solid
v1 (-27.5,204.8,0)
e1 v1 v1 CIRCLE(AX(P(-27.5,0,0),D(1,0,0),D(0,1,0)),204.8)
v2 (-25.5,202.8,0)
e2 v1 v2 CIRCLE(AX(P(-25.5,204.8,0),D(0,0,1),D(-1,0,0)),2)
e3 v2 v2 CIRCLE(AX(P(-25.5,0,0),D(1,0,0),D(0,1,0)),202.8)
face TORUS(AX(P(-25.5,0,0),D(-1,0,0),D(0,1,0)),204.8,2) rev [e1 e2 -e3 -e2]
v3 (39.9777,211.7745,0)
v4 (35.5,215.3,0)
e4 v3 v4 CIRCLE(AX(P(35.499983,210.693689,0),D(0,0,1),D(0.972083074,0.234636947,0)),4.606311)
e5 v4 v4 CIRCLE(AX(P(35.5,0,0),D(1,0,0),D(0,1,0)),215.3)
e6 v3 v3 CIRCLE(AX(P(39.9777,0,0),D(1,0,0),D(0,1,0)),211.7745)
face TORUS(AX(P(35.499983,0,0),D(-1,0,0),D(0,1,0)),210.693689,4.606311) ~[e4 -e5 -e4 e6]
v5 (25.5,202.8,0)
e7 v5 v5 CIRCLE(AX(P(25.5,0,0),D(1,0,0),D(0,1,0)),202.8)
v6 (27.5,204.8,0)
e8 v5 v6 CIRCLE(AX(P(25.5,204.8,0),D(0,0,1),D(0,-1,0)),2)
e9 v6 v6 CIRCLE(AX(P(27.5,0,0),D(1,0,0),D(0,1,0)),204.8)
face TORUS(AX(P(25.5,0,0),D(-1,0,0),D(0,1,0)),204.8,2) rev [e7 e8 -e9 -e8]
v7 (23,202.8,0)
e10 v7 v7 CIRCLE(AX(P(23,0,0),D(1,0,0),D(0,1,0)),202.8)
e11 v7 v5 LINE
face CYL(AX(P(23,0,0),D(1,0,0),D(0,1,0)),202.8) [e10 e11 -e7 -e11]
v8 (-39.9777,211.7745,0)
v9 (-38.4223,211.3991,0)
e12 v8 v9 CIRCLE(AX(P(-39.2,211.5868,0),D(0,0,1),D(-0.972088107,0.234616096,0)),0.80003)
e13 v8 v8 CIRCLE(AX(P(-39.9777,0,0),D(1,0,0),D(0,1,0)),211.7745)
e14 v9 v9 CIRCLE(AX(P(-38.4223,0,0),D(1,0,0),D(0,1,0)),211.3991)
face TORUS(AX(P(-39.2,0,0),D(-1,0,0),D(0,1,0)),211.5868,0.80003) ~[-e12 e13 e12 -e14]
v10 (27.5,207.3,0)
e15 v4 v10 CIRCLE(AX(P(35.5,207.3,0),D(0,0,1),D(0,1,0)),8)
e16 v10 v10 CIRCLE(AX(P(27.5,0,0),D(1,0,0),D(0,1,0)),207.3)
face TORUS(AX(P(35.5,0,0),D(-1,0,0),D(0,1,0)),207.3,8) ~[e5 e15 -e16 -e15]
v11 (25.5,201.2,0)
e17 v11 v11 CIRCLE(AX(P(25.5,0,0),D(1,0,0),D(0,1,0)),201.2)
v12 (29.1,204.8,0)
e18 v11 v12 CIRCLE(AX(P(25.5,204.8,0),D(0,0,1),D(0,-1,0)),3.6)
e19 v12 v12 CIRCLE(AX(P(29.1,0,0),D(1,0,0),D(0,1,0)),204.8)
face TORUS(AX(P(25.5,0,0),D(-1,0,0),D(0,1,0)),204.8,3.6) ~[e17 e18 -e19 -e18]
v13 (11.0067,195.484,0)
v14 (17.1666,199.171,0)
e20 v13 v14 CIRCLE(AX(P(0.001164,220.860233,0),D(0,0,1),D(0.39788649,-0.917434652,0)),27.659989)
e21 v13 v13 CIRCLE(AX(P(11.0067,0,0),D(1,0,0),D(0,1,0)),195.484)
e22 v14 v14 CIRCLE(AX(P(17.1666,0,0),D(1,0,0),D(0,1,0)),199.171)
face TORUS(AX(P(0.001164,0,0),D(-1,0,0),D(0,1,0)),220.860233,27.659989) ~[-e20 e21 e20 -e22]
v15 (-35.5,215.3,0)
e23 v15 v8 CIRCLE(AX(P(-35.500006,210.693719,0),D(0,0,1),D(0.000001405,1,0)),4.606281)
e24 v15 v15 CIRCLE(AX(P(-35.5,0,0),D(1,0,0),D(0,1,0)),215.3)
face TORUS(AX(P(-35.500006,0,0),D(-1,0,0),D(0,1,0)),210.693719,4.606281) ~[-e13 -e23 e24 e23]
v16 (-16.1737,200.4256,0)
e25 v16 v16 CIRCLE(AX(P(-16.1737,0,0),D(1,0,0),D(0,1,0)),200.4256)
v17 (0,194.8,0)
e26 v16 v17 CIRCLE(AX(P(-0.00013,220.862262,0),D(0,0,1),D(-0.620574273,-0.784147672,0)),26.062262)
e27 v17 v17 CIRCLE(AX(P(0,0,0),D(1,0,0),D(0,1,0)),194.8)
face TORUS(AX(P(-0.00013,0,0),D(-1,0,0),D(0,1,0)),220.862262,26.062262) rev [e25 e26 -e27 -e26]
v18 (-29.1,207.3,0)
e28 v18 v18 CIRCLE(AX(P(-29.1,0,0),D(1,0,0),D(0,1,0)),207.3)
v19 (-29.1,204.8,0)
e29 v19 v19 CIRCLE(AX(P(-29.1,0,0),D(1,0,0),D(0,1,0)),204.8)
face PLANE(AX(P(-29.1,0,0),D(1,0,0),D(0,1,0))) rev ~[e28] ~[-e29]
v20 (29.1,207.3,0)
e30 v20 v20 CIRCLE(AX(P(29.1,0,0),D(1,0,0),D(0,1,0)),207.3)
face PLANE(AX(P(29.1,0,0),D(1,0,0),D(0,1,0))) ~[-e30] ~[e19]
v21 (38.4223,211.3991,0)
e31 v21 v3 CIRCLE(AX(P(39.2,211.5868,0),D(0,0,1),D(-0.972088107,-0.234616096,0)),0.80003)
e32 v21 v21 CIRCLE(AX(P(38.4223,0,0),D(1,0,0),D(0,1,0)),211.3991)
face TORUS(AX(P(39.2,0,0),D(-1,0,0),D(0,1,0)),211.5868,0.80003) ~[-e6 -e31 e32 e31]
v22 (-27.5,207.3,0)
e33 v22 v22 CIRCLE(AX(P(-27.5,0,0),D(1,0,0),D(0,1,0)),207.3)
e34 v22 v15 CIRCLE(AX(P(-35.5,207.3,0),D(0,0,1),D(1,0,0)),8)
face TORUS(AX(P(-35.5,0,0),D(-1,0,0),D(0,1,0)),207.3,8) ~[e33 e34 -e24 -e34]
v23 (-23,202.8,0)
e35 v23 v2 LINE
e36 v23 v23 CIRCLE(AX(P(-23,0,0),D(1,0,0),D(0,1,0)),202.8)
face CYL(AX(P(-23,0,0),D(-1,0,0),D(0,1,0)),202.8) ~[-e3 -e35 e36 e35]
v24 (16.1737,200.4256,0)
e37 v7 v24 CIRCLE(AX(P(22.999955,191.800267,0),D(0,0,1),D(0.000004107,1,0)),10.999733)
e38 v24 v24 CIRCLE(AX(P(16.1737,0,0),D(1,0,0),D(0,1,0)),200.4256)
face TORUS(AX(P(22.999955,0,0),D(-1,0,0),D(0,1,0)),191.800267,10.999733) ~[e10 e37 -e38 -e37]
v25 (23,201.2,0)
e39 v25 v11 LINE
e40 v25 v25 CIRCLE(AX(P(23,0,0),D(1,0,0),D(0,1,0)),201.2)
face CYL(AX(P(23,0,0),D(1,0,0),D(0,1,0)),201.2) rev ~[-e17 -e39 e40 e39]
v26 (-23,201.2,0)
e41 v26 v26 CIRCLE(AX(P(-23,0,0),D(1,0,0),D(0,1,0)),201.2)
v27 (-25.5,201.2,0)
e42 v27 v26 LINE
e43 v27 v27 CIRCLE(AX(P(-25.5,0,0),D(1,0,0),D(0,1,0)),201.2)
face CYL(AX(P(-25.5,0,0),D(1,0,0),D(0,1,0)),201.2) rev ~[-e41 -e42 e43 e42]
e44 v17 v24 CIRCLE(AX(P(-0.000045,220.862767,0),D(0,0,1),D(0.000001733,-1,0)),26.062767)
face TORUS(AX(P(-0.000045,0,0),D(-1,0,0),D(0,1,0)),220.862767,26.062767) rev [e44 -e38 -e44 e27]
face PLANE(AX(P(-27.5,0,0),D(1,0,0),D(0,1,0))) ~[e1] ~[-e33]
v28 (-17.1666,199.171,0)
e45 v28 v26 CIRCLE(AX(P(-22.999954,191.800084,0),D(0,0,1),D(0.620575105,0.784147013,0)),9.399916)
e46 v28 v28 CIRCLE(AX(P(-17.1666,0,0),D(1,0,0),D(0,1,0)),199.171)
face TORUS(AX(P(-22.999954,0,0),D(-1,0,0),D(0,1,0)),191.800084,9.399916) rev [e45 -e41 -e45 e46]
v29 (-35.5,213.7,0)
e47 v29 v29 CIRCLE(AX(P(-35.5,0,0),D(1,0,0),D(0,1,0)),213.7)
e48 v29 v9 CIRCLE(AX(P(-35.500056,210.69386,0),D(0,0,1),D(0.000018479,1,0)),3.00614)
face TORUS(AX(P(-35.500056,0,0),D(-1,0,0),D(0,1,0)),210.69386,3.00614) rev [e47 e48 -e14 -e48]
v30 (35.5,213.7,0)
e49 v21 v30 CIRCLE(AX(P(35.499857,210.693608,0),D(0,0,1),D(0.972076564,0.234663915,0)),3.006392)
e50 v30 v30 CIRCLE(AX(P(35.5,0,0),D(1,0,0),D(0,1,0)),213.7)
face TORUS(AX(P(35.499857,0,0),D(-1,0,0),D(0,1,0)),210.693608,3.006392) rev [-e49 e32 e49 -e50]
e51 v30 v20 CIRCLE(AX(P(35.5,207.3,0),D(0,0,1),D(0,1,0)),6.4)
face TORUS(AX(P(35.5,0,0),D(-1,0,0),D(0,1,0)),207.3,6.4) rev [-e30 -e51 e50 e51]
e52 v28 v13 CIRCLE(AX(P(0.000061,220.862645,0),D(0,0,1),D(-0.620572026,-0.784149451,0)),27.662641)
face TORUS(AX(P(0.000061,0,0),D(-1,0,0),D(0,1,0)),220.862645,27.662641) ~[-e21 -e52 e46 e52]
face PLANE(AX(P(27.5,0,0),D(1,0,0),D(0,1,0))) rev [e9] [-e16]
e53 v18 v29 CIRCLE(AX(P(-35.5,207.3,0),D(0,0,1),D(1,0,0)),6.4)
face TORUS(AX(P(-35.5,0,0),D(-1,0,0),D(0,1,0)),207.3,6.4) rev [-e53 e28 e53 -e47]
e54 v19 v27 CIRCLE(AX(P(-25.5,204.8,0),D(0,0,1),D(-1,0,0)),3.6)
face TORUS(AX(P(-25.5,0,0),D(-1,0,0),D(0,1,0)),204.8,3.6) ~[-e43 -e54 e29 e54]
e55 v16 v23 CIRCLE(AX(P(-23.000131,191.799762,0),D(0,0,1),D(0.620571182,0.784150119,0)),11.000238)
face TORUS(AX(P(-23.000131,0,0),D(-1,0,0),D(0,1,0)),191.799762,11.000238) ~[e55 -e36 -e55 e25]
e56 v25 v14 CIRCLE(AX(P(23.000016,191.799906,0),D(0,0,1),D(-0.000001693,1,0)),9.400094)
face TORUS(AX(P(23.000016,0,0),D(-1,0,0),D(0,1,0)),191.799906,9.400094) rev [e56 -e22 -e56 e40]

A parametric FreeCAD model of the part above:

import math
import FreeCAD as App
import Part
import Sketcher
from FreeCAD import Vector

doc = App.newDocument("Part")
body = doc.addObject("PartDesign::Body", "Body")

sketch1 = body.newObject("Sketcher::SketchObject", "Sketch")
sketch1.AttachmentSupport = (doc.getObject("XY_Plane"), [""])
sketch1.MapMode = "FlatFace"
sketch1.addGeometry(Part.ArcOfCircle(Part.Circle(Vector(0, 220.8625, 0), Vector(0, 0, 1), 26.0625), math.radians(-128.357984), math.radians(-90)), False)
sketch1.addGeometry(Part.ArcOfCircle(Part.Circle(Vector(-23, 191.8, 0), Vector(0, 0, 1), 10.99997), math.radians(51.641908), math.radians(90)), False)
sketch1.addGeometry(Part.LineSegment(Vector(-23, 202.8, 0), Vector(-25.5, 202.8, 0)), False)
sketch1.addGeometry(Part.ArcOfCircle(Part.Circle(Vector(-25.5, 204.8, 0), Vector(0, 0, 1), 2), math.radians(180), math.radians(270)), False)
sketch1.addGeometry(Part.LineSegment(Vector(-27.5, 204.8, 0), Vector(-27.5, 207.3, 0)), False)
sketch1.addGeometry(Part.ArcOfCircle(Part.Circle(Vector(-35.5, 207.3, 0), Vector(0, 0, 1), 8), math.radians(0), math.radians(90)), False)
sketch1.addGeometry(Part.ArcOfCircle(Part.Circle(Vector(-35.5, 210.6937, 0), Vector(0, 0, 1), 4.6063), math.radians(90), math.radians(166.429857)), False)
sketch1.addGeometry(Part.ArcOfCircle(Part.Circle(Vector(-39.2, 211.5868, 0), Vector(0, 0, 1), 0.80003), math.radians(166.431006), math.radians(346.431006)), False)
sketch1.addGeometry(Part.ArcOfCircle(Part.Circle(Vector(-35.5, 210.6937, 0), Vector(0, 0, 1), 3.0063), math.radians(90), math.radians(166.429246)), False)
sketch1.addGeometry(Part.ArcOfCircle(Part.Circle(Vector(-35.5, 207.3, 0), Vector(0, 0, 1), 6.4), math.radians(0), math.radians(90)), False)
sketch1.addGeometry(Part.LineSegment(Vector(-29.1, 207.3, 0), Vector(-29.1, 204.8, 0)), False)
sketch1.addGeometry(Part.ArcOfCircle(Part.Circle(Vector(-25.5, 204.8, 0), Vector(0, 0, 1), 3.6), math.radians(180), math.radians(270)), False)
sketch1.addGeometry(Part.LineSegment(Vector(-25.5, 201.2, 0), Vector(-23, 201.2, 0)), False)
sketch1.addGeometry(Part.ArcOfCircle(Part.Circle(Vector(-23, 191.8, 0), Vector(0, 0, 1), 9.40001), math.radians(51.641953), math.radians(90)), False)
sketch1.addGeometry(Part.ArcOfCircle(Part.Circle(Vector(0, 220.8625, 0), Vector(0, 0, 1), 27.662533), math.radians(-128.358006), math.radians(-66.553538)), False)
sketch1.addGeometry(Part.ArcOfCircle(Part.Circle(Vector(0.001164, 220.860233, 0), Vector(0, 0, 1), 27.659989), math.radians(-66.553881), math.radians(-51.640971)), False)
sketch1.addGeometry(Part.ArcOfCircle(Part.Circle(Vector(23, 191.8, 0), Vector(0, 0, 1), 9.4), math.radians(90), math.radians(128.358047)), False)
sketch1.addGeometry(Part.LineSegment(Vector(23, 201.2, 0), Vector(25.5, 201.2, 0)), False)
sketch1.addGeometry(Part.ArcOfCircle(Part.Circle(Vector(25.5, 204.8, 0), Vector(0, 0, 1), 3.6), math.radians(-90), math.radians(0)), False)
sketch1.addGeometry(Part.LineSegment(Vector(29.1, 204.8, 0), Vector(29.1, 207.3, 0)), False)
sketch1.addGeometry(Part.ArcOfCircle(Part.Circle(Vector(35.5, 207.3, 0), Vector(0, 0, 1), 6.4), math.radians(90), math.radians(180)), False)
sketch1.addGeometry(Part.ArcOfCircle(Part.Circle(Vector(35.5, 210.6937, 0), Vector(0, 0, 1), 3.006231), math.radians(13.570754), math.radians(90)), False)
sketch1.addGeometry(Part.ArcOfCircle(Part.Circle(Vector(39.2, 211.5868, 0), Vector(0, 0, 1), 0.80003), math.radians(-166.431006), math.radians(13.568994)), False)
sketch1.addGeometry(Part.ArcOfCircle(Part.Circle(Vector(35.5, 210.6937, 0), Vector(0, 0, 1), 4.606292), math.radians(13.570143), math.radians(90)), False)
sketch1.addGeometry(Part.ArcOfCircle(Part.Circle(Vector(35.5, 207.3, 0), Vector(0, 0, 1), 8), math.radians(90), math.radians(180)), False)
sketch1.addGeometry(Part.LineSegment(Vector(27.5, 207.3, 0), Vector(27.5, 204.8, 0)), False)
sketch1.addGeometry(Part.ArcOfCircle(Part.Circle(Vector(25.5, 204.8, 0), Vector(0, 0, 1), 2), math.radians(-90), math.radians(0)), False)
sketch1.addGeometry(Part.LineSegment(Vector(25.5, 202.8, 0), Vector(23, 202.8, 0)), False)
sketch1.addGeometry(Part.ArcOfCircle(Part.Circle(Vector(23, 191.8, 0), Vector(0, 0, 1), 11), math.radians(90), math.radians(128.358092)), False)
sketch1.addGeometry(Part.ArcOfCircle(Part.Circle(Vector(0, 220.8625, 0), Vector(0, 0, 1), 26.06253), math.radians(-90), math.radians(-51.642016)), False)
sketch1.addConstraint(Sketcher.Constraint("Coincident", 0, 1, 1, 1))
sketch1.addConstraint(Sketcher.Constraint("Coincident", 1, 2, 2, 1))
sketch1.addConstraint(Sketcher.Constraint("Coincident", 2, 2, 3, 2))
sketch1.addConstraint(Sketcher.Constraint("Coincident", 3, 1, 4, 1))
sketch1.addConstraint(Sketcher.Constraint("Coincident", 4, 2, 5, 1))
sketch1.addConstraint(Sketcher.Constraint("Coincident", 5, 2, 6, 1))
sketch1.addConstraint(Sketcher.Constraint("Coincident", 6, 2, 7, 1))
sketch1.addConstraint(Sketcher.Constraint("Coincident", 7, 2, 8, 2))
sketch1.addConstraint(Sketcher.Constraint("Coincident", 8, 1, 9, 2))
sketch1.addConstraint(Sketcher.Constraint("Coincident", 9, 1, 10, 1))
sketch1.addConstraint(Sketcher.Constraint("Coincident", 10, 2, 11, 1))
sketch1.addConstraint(Sketcher.Constraint("Coincident", 11, 2, 12, 1))
sketch1.addConstraint(Sketcher.Constraint("Coincident", 12, 2, 13, 2))
sketch1.addConstraint(Sketcher.Constraint("Coincident", 13, 1, 14, 1))
sketch1.addConstraint(Sketcher.Constraint("Coincident", 14, 2, 15, 1))
sketch1.addConstraint(Sketcher.Constraint("Coincident", 15, 2, 16, 2))
sketch1.addConstraint(Sketcher.Constraint("Coincident", 16, 1, 17, 1))
sketch1.addConstraint(Sketcher.Constraint("Coincident", 17, 2, 18, 1))
sketch1.addConstraint(Sketcher.Constraint("Coincident", 18, 2, 19, 1))
sketch1.addConstraint(Sketcher.Constraint("Coincident", 19, 2, 20, 2))
sketch1.addConstraint(Sketcher.Constraint("Coincident", 20, 1, 21, 2))
sketch1.addConstraint(Sketcher.Constraint("Coincident", 21, 1, 22, 1))
sketch1.addConstraint(Sketcher.Constraint("Coincident", 22, 2, 23, 1))
sketch1.addConstraint(Sketcher.Constraint("Coincident", 23, 2, 24, 1))
sketch1.addConstraint(Sketcher.Constraint("Coincident", 24, 2, 25, 1))
sketch1.addConstraint(Sketcher.Constraint("Coincident", 25, 2, 26, 2))
sketch1.addConstraint(Sketcher.Constraint("Coincident", 26, 1, 27, 1))
sketch1.addConstraint(Sketcher.Constraint("Coincident", 27, 2, 28, 1))
sketch1.addConstraint(Sketcher.Constraint("Coincident", 28, 2, 29, 2))
sketch1.addConstraint(Sketcher.Constraint("Coincident", 29, 1, 0, 2))
sketch1.addConstraint(Sketcher.Constraint("Horizontal", 2))
sketch1.addConstraint(Sketcher.Constraint("Vertical", 4))
sketch1.addConstraint(Sketcher.Constraint("Vertical", 10))
sketch1.addConstraint(Sketcher.Constraint("Horizontal", 12))
sketch1.addConstraint(Sketcher.Constraint("Horizontal", 17))
sketch1.addConstraint(Sketcher.Constraint("Vertical", 19))
sketch1.addConstraint(Sketcher.Constraint("Vertical", 25))
sketch1.addConstraint(Sketcher.Constraint("Horizontal", 27))
sketch1.addConstraint(Sketcher.Constraint("Coincident", 8, 3, 6, 3))
sketch1.addConstraint(Sketcher.Constraint("Coincident", 9, 3, 5, 3))
sketch1.addConstraint(Sketcher.Constraint("Coincident", 11, 3, 3, 3))
sketch1.addConstraint(Sketcher.Constraint("Coincident", 13, 3, 1, 3))
sketch1.addConstraint(Sketcher.Constraint("Coincident", 14, 3, 0, 3))
sketch1.addConstraint(Sketcher.Constraint("Coincident", 23, 3, 21, 3))
sketch1.addConstraint(Sketcher.Constraint("Coincident", 24, 3, 20, 3))
sketch1.addConstraint(Sketcher.Constraint("Coincident", 26, 3, 18, 3))
sketch1.addConstraint(Sketcher.Constraint("Coincident", 28, 3, 16, 3))
sketch1.addConstraint(Sketcher.Constraint("Coincident", 29, 3, 0, 3))
sketch1.addConstraint(Sketcher.Constraint("PointOnObject", 0, 3, -2))
sketch1.addConstraint(Sketcher.Constraint("PointOnObject", 29, 1, -2))
sketch1.addConstraint(Sketcher.Constraint("Radius", 1, 11.0))
sketch1.addConstraint(Sketcher.Constraint("Radius", 3, 2.0))
sketch1.addConstraint(Sketcher.Constraint("Radius", 5, 8.0))
sketch1.addConstraint(Sketcher.Constraint("Radius", 24, 8.0))
sketch1.addConstraint(Sketcher.Constraint("Radius", 26, 2.0))
sketch1.addConstraint(Sketcher.Constraint("Radius", 28, 11.0))
sketch1.addConstraint(Sketcher.Constraint("Radius", 7, 0.8))
sketch1.addConstraint(Sketcher.Constraint("Radius", 22, 0.8))
sketch1.addConstraint(Sketcher.Constraint("DistanceX", 3, 1, 2, 2, 2.0))
sketch1.addConstraint(Sketcher.Constraint("DistanceY", 2, 2, 3, 1, 2.0))
sketch1.addConstraint(Sketcher.Constraint("DistanceX", 3, 1, 11, 2, 2.0))
sketch1.addConstraint(Sketcher.Constraint("DistanceX", 17, 2, 24, 2, 2.0))
sketch1.addConstraint(Sketcher.Constraint("DistanceX", 26, 1, 25, 2, 2.0))
sketch1.addConstraint(Sketcher.Constraint("DistanceY", 26, 1, 25, 2, 2.0))
sketch1.addConstraint(Sketcher.Constraint("DistanceY", -1, 1, 1, 2, 202.8))
sketch1.addConstraint(Sketcher.Constraint("DistanceY", -1, 1, 26, 1, 202.8))
sketch1.addConstraint(Sketcher.Constraint("Radius", 0, 26.0625))
sketch1.addConstraint(Sketcher.Constraint("Radius", 6, 4.6063))
sketch1.addConstraint(Sketcher.Constraint("Radius", 23, 4.6063))
sketch1.addConstraint(Sketcher.Constraint("DistanceX", 5, 3, 1, 3, 12.5))
sketch1.addConstraint(Sketcher.Constraint("DistanceX", 6, 3, 1, 3, 12.5))
sketch1.addConstraint(Sketcher.Constraint("DistanceX", 16, 3, 20, 3, 12.5))
sketch1.addConstraint(Sketcher.Constraint("DistanceX", 16, 3, 21, 3, 12.5))
sketch1.addConstraint(Sketcher.Constraint("DistanceY", 2, 2, 5, 3, 4.5))
sketch1.addConstraint(Sketcher.Constraint("DistanceX", 3, 1, 1, 2, 4.5))
sketch1.addConstraint(Sketcher.Constraint("DistanceY", 2, 2, 4, 2, 4.5))
sketch1.addConstraint(Sketcher.Constraint("DistanceY", 2, 2, 9, 1, 4.5))
sketch1.addConstraint(Sketcher.Constraint("Radius", 15, 27.66))
sketch1.addConstraint(Sketcher.Constraint("DistanceX", 12, 1, 12, 2, 2.5))
sketch1.addConstraint(Sketcher.Constraint("DistanceX", 17, 1, 17, 2, 2.5))
sketch1.addConstraint(Sketcher.Constraint("DistanceX", 27, 2, 27, 1, 2.5))
sketch1.addConstraint(Sketcher.Constraint("DistanceY", 10, 2, 10, 1, 2.5))
sketch1.addConstraint(Sketcher.Constraint("DistanceY", 19, 1, 19, 2, 2.5))
sketch1.addConstraint(Sketcher.Constraint("DistanceY", 25, 2, 25, 1, 2.5))
sketch1.addConstraint(Sketcher.Constraint("DistanceX", 1, 3, -1, 1, 23.0))
sketch1.addConstraint(Sketcher.Constraint("DistanceX", 7, 3, -1, 1, 39.2))
sketch1.addConstraint(Sketcher.Constraint("DistanceY", -1, 1, 20, 3, 207.3))
sketch1.addConstraint(Sketcher.Constraint("DistanceX", -1, 1, 22, 3, 39.2))
sketch1.addConstraint(Sketcher.Constraint("DistanceX", 5, 2, -1, 1, 35.5))
sketch1.addConstraint(Sketcher.Constraint("DistanceX", 8, 1, -1, 1, 35.5))
sketch1.addConstraint(Sketcher.Constraint("DistanceY", -1, 1, 18, 2, 204.8))
sketch1.addConstraint(Sketcher.Constraint("DistanceX", -1, 1, 20, 1, 35.5))
sketch1.addConstraint(Sketcher.Constraint("DistanceX", -1, 1, 23, 2, 35.5))
sketch1.addConstraint(Sketcher.Constraint("DistanceX", 14, 2, 15, 2, 6.16))
sketch1.addConstraint(Sketcher.Constraint("DistanceY", -1, 1, 7, 2, 211.399))
sketch1.addConstraint(Sketcher.Constraint("DistanceY", -1, 1, 13, 1, 199.171))
sketch1.addConstraint(Sketcher.Constraint("DistanceY", -1, 1, 14, 2, 195.484))
sketch1.addConstraint(Sketcher.Constraint("DistanceY", -1, 1, 21, 1, 211.399))
sketch1.addConstraint(Sketcher.Constraint("DistanceX", 13, 1, 0, 1, 0.993))
sketch1.addConstraint(Sketcher.Constraint("DistanceX", 28, 2, 15, 2, 0.993))
sketch1.addConstraint(Sketcher.Constraint("DistanceX", 6, 2, -1, 1, 39.9777))
sketch1.addConstraint(Sketcher.Constraint("DistanceX", -1, 1, 22, 2, 39.9777))
revolution = body.newObject("PartDesign::Revolution", "Revolution")
revolution.Profile = sketch1
revolution.ReferenceAxis = (sketch1, ["H_Axis"])
revolution.Angle = 360

doc.recompute()
